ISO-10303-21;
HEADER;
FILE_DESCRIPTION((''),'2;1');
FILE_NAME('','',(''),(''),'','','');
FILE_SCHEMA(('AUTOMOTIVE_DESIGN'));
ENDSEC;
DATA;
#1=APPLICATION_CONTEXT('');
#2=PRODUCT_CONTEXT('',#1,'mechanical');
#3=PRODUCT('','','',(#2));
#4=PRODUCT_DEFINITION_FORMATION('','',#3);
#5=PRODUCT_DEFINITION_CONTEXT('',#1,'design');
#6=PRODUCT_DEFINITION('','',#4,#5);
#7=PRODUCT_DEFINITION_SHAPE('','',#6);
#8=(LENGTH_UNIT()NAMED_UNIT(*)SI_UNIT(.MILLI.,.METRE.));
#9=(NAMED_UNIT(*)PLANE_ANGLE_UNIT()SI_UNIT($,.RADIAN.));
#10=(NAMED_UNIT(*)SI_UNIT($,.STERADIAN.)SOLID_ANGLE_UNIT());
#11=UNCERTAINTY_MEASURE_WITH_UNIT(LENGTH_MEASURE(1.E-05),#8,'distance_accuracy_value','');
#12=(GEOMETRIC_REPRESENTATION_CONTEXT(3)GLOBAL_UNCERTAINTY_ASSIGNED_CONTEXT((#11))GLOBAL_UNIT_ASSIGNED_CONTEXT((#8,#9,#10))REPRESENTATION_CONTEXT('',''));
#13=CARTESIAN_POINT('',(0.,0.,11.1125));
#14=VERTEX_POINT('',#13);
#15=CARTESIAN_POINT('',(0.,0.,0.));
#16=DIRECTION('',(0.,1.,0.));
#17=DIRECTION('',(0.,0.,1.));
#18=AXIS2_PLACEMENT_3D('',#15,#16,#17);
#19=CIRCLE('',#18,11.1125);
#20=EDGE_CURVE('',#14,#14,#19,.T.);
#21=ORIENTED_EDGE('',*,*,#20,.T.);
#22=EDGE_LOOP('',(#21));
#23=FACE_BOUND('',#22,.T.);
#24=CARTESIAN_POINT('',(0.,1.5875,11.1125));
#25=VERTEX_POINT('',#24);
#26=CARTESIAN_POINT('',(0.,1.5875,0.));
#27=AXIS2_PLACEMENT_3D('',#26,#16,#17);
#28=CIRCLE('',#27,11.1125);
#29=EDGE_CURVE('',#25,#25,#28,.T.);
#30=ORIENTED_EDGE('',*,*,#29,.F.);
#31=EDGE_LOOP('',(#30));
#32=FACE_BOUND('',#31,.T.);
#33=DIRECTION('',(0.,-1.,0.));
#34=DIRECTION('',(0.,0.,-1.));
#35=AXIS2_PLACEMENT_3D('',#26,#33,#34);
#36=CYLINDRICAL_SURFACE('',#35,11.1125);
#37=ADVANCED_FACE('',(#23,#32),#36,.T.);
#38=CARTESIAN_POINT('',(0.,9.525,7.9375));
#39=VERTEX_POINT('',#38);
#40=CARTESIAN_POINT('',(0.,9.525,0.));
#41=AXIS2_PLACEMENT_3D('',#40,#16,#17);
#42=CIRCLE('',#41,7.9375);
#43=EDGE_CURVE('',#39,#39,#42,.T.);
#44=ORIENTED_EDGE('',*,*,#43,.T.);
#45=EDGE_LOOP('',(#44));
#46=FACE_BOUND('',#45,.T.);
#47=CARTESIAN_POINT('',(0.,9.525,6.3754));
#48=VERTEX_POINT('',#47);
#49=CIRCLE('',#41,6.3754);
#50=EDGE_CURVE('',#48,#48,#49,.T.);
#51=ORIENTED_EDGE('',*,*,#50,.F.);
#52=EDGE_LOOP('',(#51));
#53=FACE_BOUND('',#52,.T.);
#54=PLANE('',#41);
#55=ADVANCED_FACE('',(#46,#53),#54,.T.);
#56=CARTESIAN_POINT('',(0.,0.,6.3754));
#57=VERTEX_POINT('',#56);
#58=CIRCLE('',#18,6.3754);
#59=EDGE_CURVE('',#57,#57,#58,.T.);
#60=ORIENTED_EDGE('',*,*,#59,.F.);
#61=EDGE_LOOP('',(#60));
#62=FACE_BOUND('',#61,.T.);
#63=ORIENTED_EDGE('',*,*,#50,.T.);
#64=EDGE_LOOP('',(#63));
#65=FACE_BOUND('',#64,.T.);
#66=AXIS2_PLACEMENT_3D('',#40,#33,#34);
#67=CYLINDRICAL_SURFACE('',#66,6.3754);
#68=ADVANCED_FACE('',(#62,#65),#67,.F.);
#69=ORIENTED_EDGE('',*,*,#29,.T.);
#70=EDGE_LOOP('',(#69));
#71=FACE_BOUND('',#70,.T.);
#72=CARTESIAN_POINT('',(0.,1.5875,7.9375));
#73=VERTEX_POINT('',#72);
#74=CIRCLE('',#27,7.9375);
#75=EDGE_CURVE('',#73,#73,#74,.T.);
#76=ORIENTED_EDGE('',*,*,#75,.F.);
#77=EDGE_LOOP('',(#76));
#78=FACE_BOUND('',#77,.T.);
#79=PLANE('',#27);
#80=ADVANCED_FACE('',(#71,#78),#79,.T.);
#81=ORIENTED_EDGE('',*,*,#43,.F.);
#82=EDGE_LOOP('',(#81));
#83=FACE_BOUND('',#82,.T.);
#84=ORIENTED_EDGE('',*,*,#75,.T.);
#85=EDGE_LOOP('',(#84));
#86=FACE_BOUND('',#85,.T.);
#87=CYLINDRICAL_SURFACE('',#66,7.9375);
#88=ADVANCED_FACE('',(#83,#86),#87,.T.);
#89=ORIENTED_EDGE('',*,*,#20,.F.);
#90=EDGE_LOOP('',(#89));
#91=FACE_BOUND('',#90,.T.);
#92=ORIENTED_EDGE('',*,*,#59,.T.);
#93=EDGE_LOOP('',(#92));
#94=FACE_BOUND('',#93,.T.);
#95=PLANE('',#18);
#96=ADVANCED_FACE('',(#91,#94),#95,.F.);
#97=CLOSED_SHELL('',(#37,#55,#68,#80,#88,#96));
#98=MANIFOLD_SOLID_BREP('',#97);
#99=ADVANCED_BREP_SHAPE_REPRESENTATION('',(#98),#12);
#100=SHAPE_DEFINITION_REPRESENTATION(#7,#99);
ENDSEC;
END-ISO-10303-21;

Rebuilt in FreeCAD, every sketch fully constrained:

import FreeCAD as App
import Part
import Sketcher

V = App.Vector
Q = App.Units.Quantity

doc = App.newDocument("Part")
body = doc.addObject("PartDesign::Body", "Body")

sketch1 = body.newObject("Sketcher::SketchObject", "Sketch")
sketch1.AttachmentSupport = (doc.getObject("XZ_Plane"), [""])
sketch1.MapMode = "FlatFace"
sketch1.addGeometry(Part.Circle(V(0, 0, 0), V(0, 0, 1), 8), False)
sketch1.addGeometry(Part.Circle(V(0, 0, 0), V(0, 0, 1), 6), False)
sketch1.addConstraint(Sketcher.Constraint("Coincident", 0, 3, -1, 1))
sketch1.addConstraint(Sketcher.Constraint("Coincident", 1, 3, -1, 1))
sketch1.addConstraint(Sketcher.Constraint("Diameter", 0, Q("0.625 in")))
sketch1.addConstraint(Sketcher.Constraint("Diameter", 1, Q("0.502 in")))
pad1 = body.newObject("PartDesign::Pad", "Pad")
pad1.Profile = sketch1
pad1.Length = Q("0.375 in")
pad1.Reversed = True

sketch2 = body.newObject("Sketcher::SketchObject", "Sketch001")
sketch2.AttachmentSupport = (doc.getObject("XZ_Plane"), [""])
sketch2.MapMode = "FlatFace"
sketch2.addGeometry(Part.Circle(V(0, 0, 0), V(0, 0, 1), 11), False)
sketch2.addGeometry(Part.Circle(V(0, 0, 0), V(0, 0, 1), 8), False)
sketch2.addConstraint(Sketcher.Constraint("Coincident", 0, 3, -1, 1))
sketch2.addConstraint(Sketcher.Constraint("Coincident", 1, 3, -1, 1))
sketch2.addConstraint(Sketcher.Constraint("Diameter", 0, Q("0.875 in")))
sketch2.addConstraint(Sketcher.Constraint("Diameter", 1, Q("0.625 in")))
pad2 = body.newObject("PartDesign::Pad", "Pad001")
pad2.Profile = sketch2
pad2.Length = Q("0.0625 in")
pad2.Reversed = True

doc.recompute()
